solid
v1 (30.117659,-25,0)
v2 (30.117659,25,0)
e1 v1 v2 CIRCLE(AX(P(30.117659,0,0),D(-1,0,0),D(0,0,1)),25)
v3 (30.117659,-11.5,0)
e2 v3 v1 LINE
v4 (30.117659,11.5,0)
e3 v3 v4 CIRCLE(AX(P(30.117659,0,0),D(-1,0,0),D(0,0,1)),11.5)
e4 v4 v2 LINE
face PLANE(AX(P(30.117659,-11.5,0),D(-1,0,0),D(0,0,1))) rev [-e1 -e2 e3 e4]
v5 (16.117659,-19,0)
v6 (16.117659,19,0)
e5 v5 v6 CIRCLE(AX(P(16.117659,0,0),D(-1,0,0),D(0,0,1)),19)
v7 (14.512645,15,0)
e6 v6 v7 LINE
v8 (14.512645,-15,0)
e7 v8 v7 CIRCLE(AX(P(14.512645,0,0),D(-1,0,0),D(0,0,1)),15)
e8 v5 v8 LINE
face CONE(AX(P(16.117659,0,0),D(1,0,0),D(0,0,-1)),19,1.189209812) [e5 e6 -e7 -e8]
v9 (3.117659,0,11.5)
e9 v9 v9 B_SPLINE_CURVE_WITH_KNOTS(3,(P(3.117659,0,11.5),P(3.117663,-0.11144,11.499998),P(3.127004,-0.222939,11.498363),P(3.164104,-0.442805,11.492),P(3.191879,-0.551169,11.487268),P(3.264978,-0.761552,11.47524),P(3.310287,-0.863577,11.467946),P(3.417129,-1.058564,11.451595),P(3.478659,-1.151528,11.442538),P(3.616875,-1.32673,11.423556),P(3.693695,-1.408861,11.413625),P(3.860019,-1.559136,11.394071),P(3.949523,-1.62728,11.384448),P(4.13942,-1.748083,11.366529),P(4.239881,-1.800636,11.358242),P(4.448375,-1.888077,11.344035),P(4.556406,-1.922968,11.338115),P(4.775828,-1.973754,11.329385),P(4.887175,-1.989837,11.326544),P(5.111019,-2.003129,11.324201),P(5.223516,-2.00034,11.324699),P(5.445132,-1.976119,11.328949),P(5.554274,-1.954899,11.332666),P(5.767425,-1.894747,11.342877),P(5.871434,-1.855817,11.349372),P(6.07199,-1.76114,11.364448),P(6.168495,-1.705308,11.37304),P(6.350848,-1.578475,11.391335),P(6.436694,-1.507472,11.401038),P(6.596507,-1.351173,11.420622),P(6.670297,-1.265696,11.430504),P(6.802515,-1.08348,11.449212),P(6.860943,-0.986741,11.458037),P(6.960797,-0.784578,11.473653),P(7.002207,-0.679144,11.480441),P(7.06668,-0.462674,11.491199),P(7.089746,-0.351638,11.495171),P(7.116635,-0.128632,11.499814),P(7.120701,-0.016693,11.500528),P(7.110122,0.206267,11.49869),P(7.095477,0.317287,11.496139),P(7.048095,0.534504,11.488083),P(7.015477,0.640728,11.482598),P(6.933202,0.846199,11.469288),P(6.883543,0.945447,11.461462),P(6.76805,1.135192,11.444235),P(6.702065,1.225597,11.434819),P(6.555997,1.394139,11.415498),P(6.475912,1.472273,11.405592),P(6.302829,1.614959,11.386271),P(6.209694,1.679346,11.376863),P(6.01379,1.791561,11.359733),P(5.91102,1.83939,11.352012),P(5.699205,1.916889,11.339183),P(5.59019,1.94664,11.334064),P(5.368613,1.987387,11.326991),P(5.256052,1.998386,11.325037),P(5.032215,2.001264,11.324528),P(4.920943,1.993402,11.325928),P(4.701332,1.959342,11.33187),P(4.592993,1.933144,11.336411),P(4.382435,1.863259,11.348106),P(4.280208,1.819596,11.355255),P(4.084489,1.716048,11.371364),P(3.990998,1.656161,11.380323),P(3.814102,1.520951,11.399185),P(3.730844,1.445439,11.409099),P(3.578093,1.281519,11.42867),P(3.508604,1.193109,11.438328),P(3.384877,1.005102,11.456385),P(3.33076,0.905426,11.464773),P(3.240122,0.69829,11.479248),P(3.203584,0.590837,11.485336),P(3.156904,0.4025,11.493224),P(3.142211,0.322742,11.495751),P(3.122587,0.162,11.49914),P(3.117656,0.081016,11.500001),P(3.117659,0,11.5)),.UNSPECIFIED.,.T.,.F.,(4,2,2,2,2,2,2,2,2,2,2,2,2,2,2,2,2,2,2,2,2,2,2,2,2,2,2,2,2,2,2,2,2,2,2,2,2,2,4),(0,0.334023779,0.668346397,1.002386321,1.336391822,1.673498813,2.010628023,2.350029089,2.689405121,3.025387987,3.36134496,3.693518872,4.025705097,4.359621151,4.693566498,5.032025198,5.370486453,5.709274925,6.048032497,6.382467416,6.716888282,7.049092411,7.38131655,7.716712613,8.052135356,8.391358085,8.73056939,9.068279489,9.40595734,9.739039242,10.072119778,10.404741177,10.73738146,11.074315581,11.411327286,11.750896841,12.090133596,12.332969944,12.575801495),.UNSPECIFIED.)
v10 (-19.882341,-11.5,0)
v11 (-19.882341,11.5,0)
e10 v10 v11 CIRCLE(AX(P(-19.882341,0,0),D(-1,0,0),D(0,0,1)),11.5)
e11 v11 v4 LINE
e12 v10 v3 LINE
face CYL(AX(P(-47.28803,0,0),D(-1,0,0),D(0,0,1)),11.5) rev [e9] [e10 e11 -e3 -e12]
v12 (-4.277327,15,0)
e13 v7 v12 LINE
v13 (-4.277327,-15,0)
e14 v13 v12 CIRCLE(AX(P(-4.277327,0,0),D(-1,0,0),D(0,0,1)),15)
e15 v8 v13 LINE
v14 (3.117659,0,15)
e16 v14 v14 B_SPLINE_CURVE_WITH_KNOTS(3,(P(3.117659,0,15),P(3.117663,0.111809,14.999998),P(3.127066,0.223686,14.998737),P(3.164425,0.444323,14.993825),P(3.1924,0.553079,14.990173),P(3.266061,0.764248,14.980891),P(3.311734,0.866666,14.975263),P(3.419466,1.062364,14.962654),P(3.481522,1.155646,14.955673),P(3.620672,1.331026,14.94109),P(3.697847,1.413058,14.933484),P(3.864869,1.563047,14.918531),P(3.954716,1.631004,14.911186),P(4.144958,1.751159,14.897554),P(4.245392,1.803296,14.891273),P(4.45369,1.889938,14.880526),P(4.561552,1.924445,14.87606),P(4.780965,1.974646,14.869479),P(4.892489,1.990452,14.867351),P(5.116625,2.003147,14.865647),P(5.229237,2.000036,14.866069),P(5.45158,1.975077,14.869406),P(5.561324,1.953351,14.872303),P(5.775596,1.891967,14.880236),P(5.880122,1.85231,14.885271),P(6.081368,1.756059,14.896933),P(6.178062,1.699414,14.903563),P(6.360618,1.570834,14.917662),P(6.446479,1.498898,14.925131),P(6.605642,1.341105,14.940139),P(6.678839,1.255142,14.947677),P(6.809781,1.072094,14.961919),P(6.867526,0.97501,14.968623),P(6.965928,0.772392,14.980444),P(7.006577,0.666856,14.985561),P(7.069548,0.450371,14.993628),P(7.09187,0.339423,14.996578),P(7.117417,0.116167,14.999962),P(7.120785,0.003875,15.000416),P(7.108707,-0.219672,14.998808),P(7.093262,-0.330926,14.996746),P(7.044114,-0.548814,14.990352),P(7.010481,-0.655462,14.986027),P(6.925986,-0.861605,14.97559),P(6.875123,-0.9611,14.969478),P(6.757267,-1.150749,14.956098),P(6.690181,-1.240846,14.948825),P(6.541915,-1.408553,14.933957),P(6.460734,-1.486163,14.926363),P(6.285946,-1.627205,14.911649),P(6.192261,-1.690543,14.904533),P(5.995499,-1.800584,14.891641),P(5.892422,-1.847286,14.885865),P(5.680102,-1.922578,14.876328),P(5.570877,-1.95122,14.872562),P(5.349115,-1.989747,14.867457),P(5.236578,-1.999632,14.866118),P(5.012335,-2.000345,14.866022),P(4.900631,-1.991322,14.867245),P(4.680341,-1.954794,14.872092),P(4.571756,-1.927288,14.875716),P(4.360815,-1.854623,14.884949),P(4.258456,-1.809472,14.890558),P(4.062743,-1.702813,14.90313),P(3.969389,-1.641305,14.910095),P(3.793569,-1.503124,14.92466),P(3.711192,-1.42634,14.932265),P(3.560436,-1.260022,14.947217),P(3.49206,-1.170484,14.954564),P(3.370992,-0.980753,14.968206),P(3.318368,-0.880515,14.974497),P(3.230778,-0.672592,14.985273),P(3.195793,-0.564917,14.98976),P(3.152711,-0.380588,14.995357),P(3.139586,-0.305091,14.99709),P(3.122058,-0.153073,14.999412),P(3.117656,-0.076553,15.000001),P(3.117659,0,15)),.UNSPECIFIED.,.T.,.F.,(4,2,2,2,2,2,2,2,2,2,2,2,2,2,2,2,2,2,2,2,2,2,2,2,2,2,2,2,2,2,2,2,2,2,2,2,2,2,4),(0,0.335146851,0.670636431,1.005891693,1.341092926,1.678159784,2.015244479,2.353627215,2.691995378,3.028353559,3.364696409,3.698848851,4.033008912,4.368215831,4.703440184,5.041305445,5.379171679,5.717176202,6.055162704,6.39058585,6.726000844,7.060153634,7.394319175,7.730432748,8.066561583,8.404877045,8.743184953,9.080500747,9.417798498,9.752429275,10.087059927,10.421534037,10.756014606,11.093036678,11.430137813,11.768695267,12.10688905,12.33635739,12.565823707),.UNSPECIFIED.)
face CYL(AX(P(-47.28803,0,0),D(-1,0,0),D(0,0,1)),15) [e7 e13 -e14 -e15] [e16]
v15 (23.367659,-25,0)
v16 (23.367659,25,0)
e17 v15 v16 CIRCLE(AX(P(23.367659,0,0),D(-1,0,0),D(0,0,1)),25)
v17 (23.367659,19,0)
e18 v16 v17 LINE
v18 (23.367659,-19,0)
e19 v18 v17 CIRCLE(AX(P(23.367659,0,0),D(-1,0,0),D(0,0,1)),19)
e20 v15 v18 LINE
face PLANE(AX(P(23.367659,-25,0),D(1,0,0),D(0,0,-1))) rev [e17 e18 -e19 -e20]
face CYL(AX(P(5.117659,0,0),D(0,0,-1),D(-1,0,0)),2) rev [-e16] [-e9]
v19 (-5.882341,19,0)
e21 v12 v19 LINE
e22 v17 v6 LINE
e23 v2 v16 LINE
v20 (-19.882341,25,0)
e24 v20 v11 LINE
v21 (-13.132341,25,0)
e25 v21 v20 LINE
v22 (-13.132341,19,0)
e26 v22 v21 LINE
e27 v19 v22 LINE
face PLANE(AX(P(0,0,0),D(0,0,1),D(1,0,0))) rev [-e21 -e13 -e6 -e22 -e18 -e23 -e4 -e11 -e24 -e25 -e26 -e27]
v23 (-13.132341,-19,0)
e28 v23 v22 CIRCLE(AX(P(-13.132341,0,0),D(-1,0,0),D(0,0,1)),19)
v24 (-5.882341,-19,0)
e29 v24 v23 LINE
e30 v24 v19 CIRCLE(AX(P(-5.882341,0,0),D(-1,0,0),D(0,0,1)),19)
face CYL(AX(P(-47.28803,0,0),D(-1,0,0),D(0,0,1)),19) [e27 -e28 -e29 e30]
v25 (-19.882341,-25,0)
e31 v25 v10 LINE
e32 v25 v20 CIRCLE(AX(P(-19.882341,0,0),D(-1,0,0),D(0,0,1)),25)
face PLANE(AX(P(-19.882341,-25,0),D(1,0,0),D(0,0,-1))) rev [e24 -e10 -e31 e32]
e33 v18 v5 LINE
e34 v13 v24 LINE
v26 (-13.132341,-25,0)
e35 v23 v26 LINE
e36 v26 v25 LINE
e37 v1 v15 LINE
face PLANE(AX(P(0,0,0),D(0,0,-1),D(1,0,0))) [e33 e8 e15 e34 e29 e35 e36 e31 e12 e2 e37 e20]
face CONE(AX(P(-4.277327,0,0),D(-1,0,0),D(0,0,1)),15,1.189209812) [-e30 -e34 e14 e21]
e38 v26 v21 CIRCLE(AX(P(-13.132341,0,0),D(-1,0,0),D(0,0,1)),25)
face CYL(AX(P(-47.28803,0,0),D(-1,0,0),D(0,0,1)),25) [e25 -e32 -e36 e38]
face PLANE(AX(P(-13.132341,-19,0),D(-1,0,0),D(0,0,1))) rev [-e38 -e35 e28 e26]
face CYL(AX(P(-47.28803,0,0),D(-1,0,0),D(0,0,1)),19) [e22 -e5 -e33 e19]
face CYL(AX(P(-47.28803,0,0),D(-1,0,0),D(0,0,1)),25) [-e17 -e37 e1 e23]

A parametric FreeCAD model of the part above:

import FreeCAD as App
import Part
import Sketcher
from FreeCAD import Vector
Q = App.Units.Quantity

doc = App.newDocument("Part")
body = doc.addObject("PartDesign::Body", "Body")

# Sketch on XY plane
sketch1 = body.newObject("Sketcher::SketchObject", "Sketch")
sketch1.AttachmentSupport = (doc.getObject("XY_Plane"), [""])
sketch1.MapMode = "FlatFace"
sketch1.addGeometry([
    Part.LineSegment(Vector(-19.9, 25, 0), Vector(-19.9, 11.5, 0)),  # 0
    Part.LineSegment(Vector(-19.9, 11.5, 0), Vector(30.1, 11.5, 0)),  # 1
    Part.LineSegment(Vector(30.1, 11.5, 0), Vector(30.1, 25, 0)),  # 2
    Part.LineSegment(Vector(30.1, 25, 0), Vector(23.4, 25, 0)),  # 3
    Part.LineSegment(Vector(23.4, 25, 0), Vector(23.4, 19, 0)),  # 4
    Part.LineSegment(Vector(23.4, 19, 0), Vector(16.1, 19, 0)),  # 5
    Part.LineSegment(Vector(16.1, 19, 0), Vector(14.5, 15, 0)),  # 6
    Part.LineSegment(Vector(14.5, 15, 0), Vector(-4.3, 15, 0)),  # 7
    Part.LineSegment(Vector(-4.3, 15, 0), Vector(-5.9, 19, 0)),  # 8
    Part.LineSegment(Vector(-5.9, 19, 0), Vector(-13.1, 19, 0)),  # 9
    Part.LineSegment(Vector(-13.1, 19, 0), Vector(-13.1, 25, 0)),  # 10
    Part.LineSegment(Vector(-13.1, 25, 0), Vector(-19.9, 25, 0)),  # 11
], False)
sketch1.addConstraint([
    Sketcher.Constraint("Coincident", 0, 2, 1, 1),
    Sketcher.Constraint("Coincident", 1, 2, 2, 1),
    Sketcher.Constraint("Coincident", 2, 2, 3, 1),
    Sketcher.Constraint("Coincident", 3, 2, 4, 1),
    Sketcher.Constraint("Coincident", 4, 2, 5, 1),
    Sketcher.Constraint("Coincident", 5, 2, 6, 1),
    Sketcher.Constraint("Coincident", 6, 2, 7, 1),
    Sketcher.Constraint("Coincident", 7, 2, 8, 1),
    Sketcher.Constraint("Coincident", 8, 2, 9, 1),
    Sketcher.Constraint("Coincident", 9, 2, 10, 1),
    Sketcher.Constraint("Coincident", 10, 2, 11, 1),
    Sketcher.Constraint("Coincident", 11, 2, 0, 1),
    Sketcher.Constraint("Vertical", 0),
    Sketcher.Constraint("Horizontal", 1),
    Sketcher.Constraint("Vertical", 2),
    Sketcher.Constraint("Horizontal", 3),
    Sketcher.Constraint("Vertical", 4),
    Sketcher.Constraint("Horizontal", 5),
    Sketcher.Constraint("Horizontal", 7),
    Sketcher.Constraint("Horizontal", 9),
    Sketcher.Constraint("Vertical", 10),
    Sketcher.Constraint("Horizontal", 11),
    Sketcher.Constraint("Horizontal", 5, 2, 8, 2),
    Sketcher.Constraint("Horizontal", 3, 2, 10, 2),
    Sketcher.Constraint("Equal", 5, 9),
    Sketcher.Constraint("Equal", 3, 11),
    Sketcher.Constraint("Equal", 6, 8),
    Sketcher.Constraint("DistanceX", 1, 1, 1, 2, Q("50 mm")),
    Sketcher.Constraint("DistanceY", 4, 2, 4, 1, Q("6 mm")),
    Sketcher.Constraint("DistanceY", 0, 2, 0, 1, Q("13.5 mm")),
    Sketcher.Constraint("DistanceY", -1, 1, 2, 2, Q("25 mm")),
    Sketcher.Constraint("DistanceY", -1, 1, 6, 2, Q("15 mm")),
    Sketcher.Constraint("DistanceX", 5, 2, 2, 2, Q("14 mm")),
    Sketcher.Constraint("DistanceX", 3, 2, 3, 1, Q("6.75 mm")),
    Sketcher.Constraint("DistanceX", 7, 2, 7, 1, Q("18.789972 mm")),
    Sketcher.Constraint("DistanceX", 0, 2, -1, 1, Q("19.882341 mm")),
])
revolution = body.newObject("PartDesign::Revolution", "Revolution")
revolution.Profile = sketch1
revolution.ReferenceAxis = (sketch1, ["H_Axis"])
revolution.Angle = 180

# Sketch on XZ plane
sketch2 = body.newObject("Sketcher::SketchObject", "Sketch001")
sketch2.AttachmentSupport = (doc.getObject("XZ_Plane"), [""])
sketch2.MapMode = "FlatFace"
sketch2.addGeometry([
    Part.LineSegment(Vector(3.1, 0, 0), Vector(3.1, 15, 0)),
    Part.LineSegment(Vector(3.1, 15, 0), Vector(5.1, 15, 0)),
    Part.LineSegment(Vector(5.1, 15, 0), Vector(5.1, 0, 0)),
    Part.LineSegment(Vector(5.1, 0, 0), Vector(3.1, 0, 0)),
], False)
sketch2.addGeometry(Part.LineSegment(Vector(5.1, 0, 0), Vector(5.1, 15, 0)), True)  # axis
sketch2.addConstraint([
    Sketcher.Constraint("Coincident", 0, 2, 1, 1),
    Sketcher.Constraint("Coincident", 1, 2, 2, 1),
    Sketcher.Constraint("Coincident", 2, 2, 3, 1),
    Sketcher.Constraint("Coincident", 3, 2, 0, 1),
    Sketcher.Constraint("Vertical", 0),
    Sketcher.Constraint("Horizontal", 1),
    Sketcher.Constraint("Vertical", 2),
    Sketcher.Constraint("Horizontal", 3),
    Sketcher.Constraint("Vertical", 4),
    Sketcher.Constraint("Coincident", 4, 1, 2, 2),
    Sketcher.Constraint("PointOnObject", 2, 2, -1),
    Sketcher.Constraint("Horizontal", 0, 2, 4, 2),
    Sketcher.Constraint("DistanceX", 1, 1, 1, 2, Q("2 mm")),
    Sketcher.Constraint("DistanceY", 0, 1, 0, 2, Q("15 mm")),
    Sketcher.Constraint("DistanceX", -1, 1, 0, 2, Q("3.117659 mm")),
])
groove = body.newObject("PartDesign::Groove", "Groove")
groove.Profile = sketch2
groove.ReferenceAxis = (sketch2, ["Axis0"])
groove.Angle = 360

doc.recompute()
